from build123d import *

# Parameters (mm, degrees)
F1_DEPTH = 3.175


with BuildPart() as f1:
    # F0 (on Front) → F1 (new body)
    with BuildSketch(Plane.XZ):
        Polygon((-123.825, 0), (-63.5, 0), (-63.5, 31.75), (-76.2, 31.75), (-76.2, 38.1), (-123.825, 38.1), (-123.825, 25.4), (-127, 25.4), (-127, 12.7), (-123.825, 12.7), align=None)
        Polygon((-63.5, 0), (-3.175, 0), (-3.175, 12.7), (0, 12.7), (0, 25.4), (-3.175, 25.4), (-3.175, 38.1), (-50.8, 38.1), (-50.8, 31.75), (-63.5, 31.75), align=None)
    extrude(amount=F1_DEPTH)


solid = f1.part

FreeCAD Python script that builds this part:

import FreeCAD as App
import Part
import Sketcher
Q = App.Units.Quantity

doc = App.newDocument("Part")
params = doc.addObject("Spreadsheet::Sheet", "Params")
for row, (alias, value) in enumerate([
    ("sketch1_width", "1 in"),
    ("sketch1_height", "0.5 in"),
    ("sketch1_width2", "4.75 in"),
    ("sketch1_height2", "0.25 in"),
    ("pad1_length", "0.125 in"),
], start=1):
    params.set(f"A{row}", alias)
    params.set(f"B{row}", "=" + value)
    params.setAlias(f"B{row}", alias)

body = doc.addObject("PartDesign::Body", "Body")

# Sketch on XZ plane
sketch1 = doc.addObject("Sketcher::SketchObject", "Sketch")
body.addObject(sketch1)
sketch1.AttachmentSupport = (doc.XZ_Plane, [""])
sketch1.MapMode = "FlatFace"
sketch1.addGeometry([
    Part.LineSegment(App.Vector(-123.825, 0, 0), App.Vector(-3.175, 0, 0)),  # 0
    Part.LineSegment(App.Vector(-3.175, 0, 0), App.Vector(-3.175, 12.7, 0)),  # 1
    Part.LineSegment(App.Vector(-3.175, 12.7, 0), App.Vector(0, 12.7, 0)),  # 2
    Part.LineSegment(App.Vector(0, 12.7, 0), App.Vector(0, 25.4, 0)),  # 3
    Part.LineSegment(App.Vector(0, 25.4, 0), App.Vector(-3.175, 25.4, 0)),  # 4
    Part.LineSegment(App.Vector(-3.175, 25.4, 0), App.Vector(-3.175, 38.1, 0)),  # 5
    Part.LineSegment(App.Vector(-3.175, 38.1, 0), App.Vector(-50.8, 38.1, 0)),  # 6
    Part.LineSegment(App.Vector(-50.8, 38.1, 0), App.Vector(-50.8, 31.75, 0)),  # 7
    Part.LineSegment(App.Vector(-50.8, 31.75, 0), App.Vector(-76.2, 31.75, 0)),  # 8
    Part.LineSegment(App.Vector(-76.2, 31.75, 0), App.Vector(-76.2, 38.1, 0)),  # 9
    Part.LineSegment(App.Vector(-76.2, 38.1, 0), App.Vector(-123.825, 38.1, 0)),  # 10
    Part.LineSegment(App.Vector(-123.825, 38.1, 0), App.Vector(-123.825, 25.4, 0)),  # 11
    Part.LineSegment(App.Vector(-123.825, 25.4, 0), App.Vector(-127, 25.4, 0)),  # 12
    Part.LineSegment(App.Vector(-127, 25.4, 0), App.Vector(-127, 12.7, 0)),  # 13
    Part.LineSegment(App.Vector(-127, 12.7, 0), App.Vector(-123.825, 12.7, 0)),  # 14
    Part.LineSegment(App.Vector(-123.825, 12.7, 0), App.Vector(-123.825, 0, 0)),  # 15
], False)
sketch1.addConstraint([
    Sketcher.Constraint("Coincident", 0, 2, 1, 1),
    Sketcher.Constraint("Coincident", 1, 2, 2, 1),
    Sketcher.Constraint("Coincident", 2, 2, 3, 1),
    Sketcher.Constraint("Coincident", 3, 2, 4, 1),
    Sketcher.Constraint("Coincident", 4, 2, 5, 1),
    Sketcher.Constraint("Coincident", 5, 2, 6, 1),
    Sketcher.Constraint("Coincident", 6, 2, 7, 1),
    Sketcher.Constraint("Coincident", 7, 2, 8, 1),
    Sketcher.Constraint("Coincident", 8, 2, 9, 1),
    Sketcher.Constraint("Coincident", 9, 2, 10, 1),
    Sketcher.Constraint("Coincident", 10, 2, 11, 1),
    Sketcher.Constraint("Coincident", 11, 2, 12, 1),
    Sketcher.Constraint("Coincident", 12, 2, 13, 1),
    Sketcher.Constraint("Coincident", 13, 2, 14, 1),
    Sketcher.Constraint("Coincident", 14, 2, 15, 1),
    Sketcher.Constraint("Coincident", 15, 2, 0, 1),
    Sketcher.Constraint("Horizontal", 0),
    Sketcher.Constraint("Vertical", 1),
    Sketcher.Constraint("Horizontal", 2),
    Sketcher.Constraint("Vertical", 3),
    Sketcher.Constraint("Horizontal", 4),
    Sketcher.Constraint("Vertical", 5),
    Sketcher.Constraint("Horizontal", 6),
    Sketcher.Constraint("Vertical", 7),
    Sketcher.Constraint("Horizontal", 8),
    Sketcher.Constraint("Vertical", 9),
    Sketcher.Constraint("Horizontal", 10),
    Sketcher.Constraint("Vertical", 11),
    Sketcher.Constraint("Horizontal", 12),
    Sketcher.Constraint("Vertical", 13),
    Sketcher.Constraint("Horizontal", 14),
    Sketcher.Constraint("Vertical", 15),
    Sketcher.Constraint("PointOnObject", 0, 2, -1),
    Sketcher.Constraint("PointOnObject", 2, 2, -2),
    Sketcher.Constraint("Horizontal", 6, 2, 9, 2),
    Sketcher.Constraint("Horizontal", 4, 2, 11, 2),
    Sketcher.Constraint("Horizontal", 2, 2, 13, 2),
    Sketcher.Constraint("Vertical", 1, 2, 4, 2),
    Sketcher.Constraint("Vertical", 11, 2, 14, 2),
    Sketcher.Constraint("Equal", 6, 10),
    Sketcher.Constraint("Equal", 4, 12),
    Sketcher.Constraint("Equal", 1, 3),
    Sketcher.Constraint("Equal", 3, 5),
    Sketcher.Constraint("DistanceX", 8, 2, 8, 1, Q("1 in")),
    Sketcher.Constraint("DistanceY", 1, 1, 1, 2, Q("0.5 in")),
    Sketcher.Constraint("DistanceX", 6, 2, -1, 1, Q("2 in")),
    Sketcher.Constraint("DistanceX", 0, 1, 0, 2, Q("4.75 in")),
    Sketcher.Constraint("DistanceY", 7, 2, 7, 1, Q("0.25 in")),
])
sketch1.setExpression("Constraints[43]", "Params.sketch1_width")
sketch1.setExpression("Constraints[44]", "Params.sketch1_height")
sketch1.setExpression("Constraints[46]", "Params.sketch1_width2")
sketch1.setExpression("Constraints[47]", "Params.sketch1_height2")
pad1 = doc.addObject("PartDesign::Pad", "Pad")
body.addObject(pad1)
pad1.Profile = sketch1
pad1.setExpression("Length", "Params.pad1_length")

doc.recompute()
